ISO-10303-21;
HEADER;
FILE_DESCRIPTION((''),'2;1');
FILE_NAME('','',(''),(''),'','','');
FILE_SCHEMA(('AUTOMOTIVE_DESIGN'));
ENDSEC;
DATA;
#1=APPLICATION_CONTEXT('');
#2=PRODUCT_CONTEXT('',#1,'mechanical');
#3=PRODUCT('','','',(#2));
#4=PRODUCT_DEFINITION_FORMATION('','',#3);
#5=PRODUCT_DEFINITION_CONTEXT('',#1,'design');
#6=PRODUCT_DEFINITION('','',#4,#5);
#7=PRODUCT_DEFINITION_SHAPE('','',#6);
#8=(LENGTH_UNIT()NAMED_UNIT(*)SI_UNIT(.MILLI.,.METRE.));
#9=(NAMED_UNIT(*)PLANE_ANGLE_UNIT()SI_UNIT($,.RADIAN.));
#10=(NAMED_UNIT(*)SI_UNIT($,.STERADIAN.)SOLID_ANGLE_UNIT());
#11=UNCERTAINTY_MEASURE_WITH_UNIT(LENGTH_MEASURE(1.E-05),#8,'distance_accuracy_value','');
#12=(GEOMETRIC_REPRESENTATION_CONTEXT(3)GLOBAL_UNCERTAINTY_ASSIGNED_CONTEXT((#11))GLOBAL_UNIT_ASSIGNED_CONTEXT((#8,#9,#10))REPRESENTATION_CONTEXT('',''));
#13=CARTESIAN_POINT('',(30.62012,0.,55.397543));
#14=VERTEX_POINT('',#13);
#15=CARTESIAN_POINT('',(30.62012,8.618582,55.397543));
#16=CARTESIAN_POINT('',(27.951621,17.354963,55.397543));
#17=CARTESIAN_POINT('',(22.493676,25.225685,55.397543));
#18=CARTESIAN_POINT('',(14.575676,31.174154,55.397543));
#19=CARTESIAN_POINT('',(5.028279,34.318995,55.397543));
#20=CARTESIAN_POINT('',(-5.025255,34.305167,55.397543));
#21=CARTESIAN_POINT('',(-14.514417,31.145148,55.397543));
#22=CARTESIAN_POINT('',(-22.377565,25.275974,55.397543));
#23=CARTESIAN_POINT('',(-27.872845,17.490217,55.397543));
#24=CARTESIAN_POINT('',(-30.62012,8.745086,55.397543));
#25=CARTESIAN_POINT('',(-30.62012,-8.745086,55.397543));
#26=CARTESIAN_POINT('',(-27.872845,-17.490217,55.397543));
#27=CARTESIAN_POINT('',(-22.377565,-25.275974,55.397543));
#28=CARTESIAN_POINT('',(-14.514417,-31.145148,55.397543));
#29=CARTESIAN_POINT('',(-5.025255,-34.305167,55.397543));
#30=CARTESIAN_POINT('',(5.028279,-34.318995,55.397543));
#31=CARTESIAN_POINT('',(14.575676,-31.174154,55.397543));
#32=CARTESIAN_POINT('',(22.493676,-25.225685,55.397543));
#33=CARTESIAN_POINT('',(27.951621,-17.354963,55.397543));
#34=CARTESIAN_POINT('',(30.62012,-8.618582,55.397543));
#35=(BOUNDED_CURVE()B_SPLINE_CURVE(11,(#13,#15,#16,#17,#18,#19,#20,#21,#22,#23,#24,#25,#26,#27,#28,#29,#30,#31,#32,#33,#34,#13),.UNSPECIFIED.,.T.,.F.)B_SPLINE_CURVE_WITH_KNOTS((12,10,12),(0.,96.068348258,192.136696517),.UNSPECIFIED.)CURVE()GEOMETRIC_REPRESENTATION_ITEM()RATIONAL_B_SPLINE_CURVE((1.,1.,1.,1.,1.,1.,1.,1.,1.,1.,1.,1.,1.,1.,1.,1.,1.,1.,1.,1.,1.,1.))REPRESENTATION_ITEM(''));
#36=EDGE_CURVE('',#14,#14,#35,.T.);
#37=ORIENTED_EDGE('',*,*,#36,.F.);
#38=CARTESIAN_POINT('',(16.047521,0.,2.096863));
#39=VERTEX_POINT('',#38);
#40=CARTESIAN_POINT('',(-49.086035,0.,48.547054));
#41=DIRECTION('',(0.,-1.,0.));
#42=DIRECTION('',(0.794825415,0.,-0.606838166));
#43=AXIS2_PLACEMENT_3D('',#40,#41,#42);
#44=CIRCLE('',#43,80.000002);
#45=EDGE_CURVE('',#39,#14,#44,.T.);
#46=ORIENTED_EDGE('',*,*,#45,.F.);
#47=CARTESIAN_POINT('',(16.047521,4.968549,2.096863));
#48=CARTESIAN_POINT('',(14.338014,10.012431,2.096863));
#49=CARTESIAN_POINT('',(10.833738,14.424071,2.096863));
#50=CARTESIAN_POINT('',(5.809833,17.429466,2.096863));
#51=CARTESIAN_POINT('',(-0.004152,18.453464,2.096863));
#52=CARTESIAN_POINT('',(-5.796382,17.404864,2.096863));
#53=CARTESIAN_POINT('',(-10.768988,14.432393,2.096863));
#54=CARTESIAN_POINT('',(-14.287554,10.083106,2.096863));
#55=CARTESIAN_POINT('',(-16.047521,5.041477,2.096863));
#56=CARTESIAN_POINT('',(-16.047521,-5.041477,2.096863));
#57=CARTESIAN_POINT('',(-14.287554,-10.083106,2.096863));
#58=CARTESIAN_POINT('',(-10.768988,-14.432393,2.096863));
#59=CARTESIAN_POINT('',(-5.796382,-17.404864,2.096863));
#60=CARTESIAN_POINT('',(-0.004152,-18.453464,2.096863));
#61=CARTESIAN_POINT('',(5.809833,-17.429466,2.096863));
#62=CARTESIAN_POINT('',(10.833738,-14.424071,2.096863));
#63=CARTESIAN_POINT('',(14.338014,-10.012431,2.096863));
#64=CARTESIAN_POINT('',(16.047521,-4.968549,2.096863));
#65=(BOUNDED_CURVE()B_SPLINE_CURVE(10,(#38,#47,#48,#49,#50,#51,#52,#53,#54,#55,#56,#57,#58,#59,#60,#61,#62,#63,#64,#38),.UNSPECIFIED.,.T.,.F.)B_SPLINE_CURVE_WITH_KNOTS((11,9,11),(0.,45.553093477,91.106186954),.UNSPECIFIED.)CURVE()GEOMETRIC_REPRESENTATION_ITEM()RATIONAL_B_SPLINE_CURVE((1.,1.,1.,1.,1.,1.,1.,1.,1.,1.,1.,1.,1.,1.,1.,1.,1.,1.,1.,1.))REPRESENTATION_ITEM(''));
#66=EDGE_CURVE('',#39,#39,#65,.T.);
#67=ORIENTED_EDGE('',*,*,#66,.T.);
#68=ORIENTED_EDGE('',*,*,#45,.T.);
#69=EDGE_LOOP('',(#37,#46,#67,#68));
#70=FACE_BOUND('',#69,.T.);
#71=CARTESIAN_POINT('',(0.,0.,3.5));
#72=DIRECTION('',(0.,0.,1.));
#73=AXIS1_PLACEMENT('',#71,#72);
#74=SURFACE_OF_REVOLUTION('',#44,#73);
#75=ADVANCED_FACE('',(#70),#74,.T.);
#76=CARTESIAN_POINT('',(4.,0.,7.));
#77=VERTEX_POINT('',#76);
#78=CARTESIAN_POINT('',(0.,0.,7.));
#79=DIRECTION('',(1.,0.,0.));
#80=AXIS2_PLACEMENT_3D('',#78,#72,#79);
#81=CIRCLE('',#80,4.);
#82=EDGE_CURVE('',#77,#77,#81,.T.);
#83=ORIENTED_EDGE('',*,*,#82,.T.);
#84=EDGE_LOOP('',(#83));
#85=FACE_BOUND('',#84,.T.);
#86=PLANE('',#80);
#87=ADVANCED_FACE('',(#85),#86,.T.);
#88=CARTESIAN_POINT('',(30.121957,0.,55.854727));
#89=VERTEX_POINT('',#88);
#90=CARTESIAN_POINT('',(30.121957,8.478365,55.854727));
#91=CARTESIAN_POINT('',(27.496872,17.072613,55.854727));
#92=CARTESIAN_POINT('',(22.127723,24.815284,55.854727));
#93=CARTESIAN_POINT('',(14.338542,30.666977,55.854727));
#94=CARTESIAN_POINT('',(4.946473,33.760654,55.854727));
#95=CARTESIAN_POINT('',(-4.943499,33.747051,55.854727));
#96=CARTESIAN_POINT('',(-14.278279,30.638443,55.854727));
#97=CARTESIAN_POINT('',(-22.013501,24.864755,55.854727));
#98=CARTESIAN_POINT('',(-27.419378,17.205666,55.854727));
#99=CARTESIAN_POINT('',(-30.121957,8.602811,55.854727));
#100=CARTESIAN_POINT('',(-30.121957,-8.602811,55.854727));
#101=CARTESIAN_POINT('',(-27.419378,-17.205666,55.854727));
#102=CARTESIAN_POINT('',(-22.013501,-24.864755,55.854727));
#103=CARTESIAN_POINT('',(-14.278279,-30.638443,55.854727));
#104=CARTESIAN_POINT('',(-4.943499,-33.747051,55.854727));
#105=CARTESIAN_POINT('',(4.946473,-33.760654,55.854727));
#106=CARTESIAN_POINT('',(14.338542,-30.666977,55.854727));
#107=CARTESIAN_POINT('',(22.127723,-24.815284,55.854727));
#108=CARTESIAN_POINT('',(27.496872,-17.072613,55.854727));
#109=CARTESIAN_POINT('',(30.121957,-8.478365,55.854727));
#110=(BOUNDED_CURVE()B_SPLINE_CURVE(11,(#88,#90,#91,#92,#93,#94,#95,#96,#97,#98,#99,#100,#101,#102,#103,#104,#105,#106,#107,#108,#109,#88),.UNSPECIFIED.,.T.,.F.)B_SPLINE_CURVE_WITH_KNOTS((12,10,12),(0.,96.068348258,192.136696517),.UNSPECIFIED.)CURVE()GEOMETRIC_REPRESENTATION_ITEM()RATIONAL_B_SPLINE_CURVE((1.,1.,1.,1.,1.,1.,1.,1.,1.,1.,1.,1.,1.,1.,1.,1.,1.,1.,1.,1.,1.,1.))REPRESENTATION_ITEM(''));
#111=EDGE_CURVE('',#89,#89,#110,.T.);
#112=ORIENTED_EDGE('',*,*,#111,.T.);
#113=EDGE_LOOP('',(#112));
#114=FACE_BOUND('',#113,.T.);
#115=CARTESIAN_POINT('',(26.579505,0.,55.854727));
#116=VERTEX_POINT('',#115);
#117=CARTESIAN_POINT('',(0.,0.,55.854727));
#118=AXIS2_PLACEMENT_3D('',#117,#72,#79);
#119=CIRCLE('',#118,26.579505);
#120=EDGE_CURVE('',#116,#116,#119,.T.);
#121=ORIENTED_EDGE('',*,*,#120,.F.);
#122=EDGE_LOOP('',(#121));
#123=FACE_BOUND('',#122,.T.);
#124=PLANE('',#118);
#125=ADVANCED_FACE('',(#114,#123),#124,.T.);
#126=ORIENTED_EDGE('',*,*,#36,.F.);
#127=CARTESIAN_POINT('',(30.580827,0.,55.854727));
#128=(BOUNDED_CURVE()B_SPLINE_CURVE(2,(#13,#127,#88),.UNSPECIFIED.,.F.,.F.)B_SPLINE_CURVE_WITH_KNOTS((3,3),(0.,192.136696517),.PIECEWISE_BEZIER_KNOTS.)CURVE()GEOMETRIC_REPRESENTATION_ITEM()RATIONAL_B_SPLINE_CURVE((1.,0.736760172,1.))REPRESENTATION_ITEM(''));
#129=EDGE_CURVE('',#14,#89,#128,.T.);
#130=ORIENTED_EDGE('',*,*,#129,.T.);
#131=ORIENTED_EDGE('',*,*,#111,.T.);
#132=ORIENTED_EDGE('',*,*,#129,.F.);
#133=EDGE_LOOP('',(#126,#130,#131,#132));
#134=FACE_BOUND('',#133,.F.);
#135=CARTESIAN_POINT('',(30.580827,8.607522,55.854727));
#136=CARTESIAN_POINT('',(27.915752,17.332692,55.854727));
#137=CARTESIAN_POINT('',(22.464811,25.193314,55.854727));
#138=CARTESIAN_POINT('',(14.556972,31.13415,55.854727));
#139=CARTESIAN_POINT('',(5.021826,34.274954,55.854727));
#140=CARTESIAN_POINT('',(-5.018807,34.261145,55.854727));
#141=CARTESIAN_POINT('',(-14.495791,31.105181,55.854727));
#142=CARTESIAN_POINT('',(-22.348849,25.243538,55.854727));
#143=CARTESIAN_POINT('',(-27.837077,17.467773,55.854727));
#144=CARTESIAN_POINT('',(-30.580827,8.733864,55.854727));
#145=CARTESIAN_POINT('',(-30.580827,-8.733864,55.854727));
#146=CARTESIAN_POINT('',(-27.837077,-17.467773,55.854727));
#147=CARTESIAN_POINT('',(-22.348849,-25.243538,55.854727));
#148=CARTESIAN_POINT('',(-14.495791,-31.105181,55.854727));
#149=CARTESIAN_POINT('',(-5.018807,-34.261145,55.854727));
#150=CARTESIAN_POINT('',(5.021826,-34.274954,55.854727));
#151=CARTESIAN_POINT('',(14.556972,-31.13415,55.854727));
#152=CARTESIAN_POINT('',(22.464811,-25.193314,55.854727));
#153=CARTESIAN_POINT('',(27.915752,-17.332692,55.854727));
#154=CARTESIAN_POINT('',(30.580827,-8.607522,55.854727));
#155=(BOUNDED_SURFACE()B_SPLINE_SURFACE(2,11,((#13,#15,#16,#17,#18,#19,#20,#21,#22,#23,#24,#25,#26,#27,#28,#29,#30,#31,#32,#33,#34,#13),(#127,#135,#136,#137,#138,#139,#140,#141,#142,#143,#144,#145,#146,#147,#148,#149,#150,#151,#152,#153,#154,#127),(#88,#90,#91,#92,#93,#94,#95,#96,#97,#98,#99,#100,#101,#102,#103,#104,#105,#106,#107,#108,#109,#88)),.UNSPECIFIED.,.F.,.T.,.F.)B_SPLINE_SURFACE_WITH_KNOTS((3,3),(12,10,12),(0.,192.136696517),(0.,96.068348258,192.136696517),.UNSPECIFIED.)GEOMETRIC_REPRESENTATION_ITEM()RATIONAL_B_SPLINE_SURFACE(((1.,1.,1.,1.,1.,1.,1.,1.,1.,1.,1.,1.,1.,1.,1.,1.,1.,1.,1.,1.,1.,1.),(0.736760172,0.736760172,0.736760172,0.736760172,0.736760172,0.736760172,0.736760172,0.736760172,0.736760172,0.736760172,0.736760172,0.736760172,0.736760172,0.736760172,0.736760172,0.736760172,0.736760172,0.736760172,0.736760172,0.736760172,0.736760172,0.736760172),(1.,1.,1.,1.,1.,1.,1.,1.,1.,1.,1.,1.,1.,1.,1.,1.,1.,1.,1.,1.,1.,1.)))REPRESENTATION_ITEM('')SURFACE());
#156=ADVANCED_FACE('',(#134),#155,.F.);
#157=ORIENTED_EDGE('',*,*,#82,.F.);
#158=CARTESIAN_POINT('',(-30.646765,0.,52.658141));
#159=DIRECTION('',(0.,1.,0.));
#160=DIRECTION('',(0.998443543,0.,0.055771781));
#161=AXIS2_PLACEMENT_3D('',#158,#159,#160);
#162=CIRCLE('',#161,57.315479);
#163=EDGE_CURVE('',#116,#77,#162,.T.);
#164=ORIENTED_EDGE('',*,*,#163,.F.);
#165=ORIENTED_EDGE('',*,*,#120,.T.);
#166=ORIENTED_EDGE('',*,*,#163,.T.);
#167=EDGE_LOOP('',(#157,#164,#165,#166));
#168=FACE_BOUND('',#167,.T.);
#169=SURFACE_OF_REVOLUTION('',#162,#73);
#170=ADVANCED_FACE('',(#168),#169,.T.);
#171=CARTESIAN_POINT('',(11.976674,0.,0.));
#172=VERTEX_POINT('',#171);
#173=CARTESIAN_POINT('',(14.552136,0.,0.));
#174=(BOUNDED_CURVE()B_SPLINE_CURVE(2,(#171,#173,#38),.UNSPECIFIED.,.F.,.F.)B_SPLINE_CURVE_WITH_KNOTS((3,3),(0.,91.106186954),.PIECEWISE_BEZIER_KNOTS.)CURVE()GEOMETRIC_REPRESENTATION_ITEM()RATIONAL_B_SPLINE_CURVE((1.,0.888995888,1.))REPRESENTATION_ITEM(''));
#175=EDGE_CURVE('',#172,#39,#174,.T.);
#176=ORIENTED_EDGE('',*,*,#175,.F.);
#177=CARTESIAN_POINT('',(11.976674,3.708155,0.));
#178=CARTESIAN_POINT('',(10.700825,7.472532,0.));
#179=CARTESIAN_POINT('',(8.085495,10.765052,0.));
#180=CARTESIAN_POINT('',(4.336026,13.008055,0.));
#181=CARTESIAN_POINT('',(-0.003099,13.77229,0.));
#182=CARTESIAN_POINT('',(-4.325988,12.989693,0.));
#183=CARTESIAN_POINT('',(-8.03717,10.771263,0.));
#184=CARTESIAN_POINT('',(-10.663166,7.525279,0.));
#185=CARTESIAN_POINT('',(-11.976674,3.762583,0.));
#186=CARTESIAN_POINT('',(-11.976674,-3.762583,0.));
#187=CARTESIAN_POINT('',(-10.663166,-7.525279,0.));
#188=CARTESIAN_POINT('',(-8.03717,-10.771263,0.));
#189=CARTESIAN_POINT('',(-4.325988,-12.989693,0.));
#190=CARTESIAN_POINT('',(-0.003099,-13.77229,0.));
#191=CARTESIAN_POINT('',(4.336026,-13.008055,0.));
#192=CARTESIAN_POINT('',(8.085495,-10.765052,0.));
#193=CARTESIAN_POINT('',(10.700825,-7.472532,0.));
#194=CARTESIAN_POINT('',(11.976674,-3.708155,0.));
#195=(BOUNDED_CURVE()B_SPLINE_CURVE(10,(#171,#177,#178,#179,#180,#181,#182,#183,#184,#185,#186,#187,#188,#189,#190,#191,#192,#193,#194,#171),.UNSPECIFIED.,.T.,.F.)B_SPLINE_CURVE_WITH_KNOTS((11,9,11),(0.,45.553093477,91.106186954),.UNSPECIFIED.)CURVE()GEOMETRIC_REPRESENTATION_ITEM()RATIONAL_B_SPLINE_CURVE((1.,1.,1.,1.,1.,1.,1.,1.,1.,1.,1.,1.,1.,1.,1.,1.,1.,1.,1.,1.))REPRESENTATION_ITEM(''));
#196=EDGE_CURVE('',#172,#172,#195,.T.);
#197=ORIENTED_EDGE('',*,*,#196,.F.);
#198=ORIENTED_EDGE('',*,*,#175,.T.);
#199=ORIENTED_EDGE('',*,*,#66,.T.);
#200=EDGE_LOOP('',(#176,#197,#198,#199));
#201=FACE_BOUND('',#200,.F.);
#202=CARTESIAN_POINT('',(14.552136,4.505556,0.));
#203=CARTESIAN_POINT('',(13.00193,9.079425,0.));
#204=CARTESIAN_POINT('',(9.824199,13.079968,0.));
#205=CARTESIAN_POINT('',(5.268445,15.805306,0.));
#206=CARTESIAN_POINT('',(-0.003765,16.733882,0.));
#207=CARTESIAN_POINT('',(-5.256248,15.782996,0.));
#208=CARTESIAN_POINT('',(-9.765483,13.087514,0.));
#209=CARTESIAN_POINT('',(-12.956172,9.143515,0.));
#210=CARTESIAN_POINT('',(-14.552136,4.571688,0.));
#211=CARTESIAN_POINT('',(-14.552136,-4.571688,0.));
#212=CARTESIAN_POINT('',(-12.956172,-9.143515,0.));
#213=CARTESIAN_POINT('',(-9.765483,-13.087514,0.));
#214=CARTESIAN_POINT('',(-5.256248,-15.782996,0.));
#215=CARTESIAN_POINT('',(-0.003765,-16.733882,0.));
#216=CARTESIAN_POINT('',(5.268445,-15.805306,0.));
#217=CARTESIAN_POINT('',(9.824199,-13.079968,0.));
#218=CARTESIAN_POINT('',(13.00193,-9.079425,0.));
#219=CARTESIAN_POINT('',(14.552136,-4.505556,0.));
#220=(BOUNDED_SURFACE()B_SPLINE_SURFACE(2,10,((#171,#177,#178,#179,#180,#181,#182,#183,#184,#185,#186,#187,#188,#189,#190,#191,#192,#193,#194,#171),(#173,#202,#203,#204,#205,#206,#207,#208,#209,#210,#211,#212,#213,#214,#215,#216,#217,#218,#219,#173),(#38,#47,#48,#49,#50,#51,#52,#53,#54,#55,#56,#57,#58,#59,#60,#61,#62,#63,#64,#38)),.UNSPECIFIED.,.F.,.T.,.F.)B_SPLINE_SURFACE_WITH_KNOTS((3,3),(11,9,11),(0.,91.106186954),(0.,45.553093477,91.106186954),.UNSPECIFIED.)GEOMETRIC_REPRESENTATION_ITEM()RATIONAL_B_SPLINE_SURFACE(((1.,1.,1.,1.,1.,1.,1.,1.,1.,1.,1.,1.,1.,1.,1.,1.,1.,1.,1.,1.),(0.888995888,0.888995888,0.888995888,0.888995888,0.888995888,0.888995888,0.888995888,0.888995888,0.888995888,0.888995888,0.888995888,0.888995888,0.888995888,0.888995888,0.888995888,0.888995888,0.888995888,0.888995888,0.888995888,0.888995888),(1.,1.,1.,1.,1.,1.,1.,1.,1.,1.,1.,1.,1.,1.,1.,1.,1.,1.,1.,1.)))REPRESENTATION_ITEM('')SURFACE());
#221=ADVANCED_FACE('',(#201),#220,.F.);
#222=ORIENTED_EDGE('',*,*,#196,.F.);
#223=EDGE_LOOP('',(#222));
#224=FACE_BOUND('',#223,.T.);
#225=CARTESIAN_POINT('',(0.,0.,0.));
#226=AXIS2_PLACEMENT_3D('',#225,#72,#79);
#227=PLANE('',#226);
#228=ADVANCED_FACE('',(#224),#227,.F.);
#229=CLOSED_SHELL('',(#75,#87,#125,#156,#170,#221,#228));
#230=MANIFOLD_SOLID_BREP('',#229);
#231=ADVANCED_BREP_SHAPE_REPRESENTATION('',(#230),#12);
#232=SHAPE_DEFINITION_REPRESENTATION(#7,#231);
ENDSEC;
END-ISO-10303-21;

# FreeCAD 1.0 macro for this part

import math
import FreeCAD as App
import Part
import Sketcher


def edges_at(feature, points):
    """Names of the edges that pass closest to the given points."""
    edges = feature.Shape.Edges
    near = lambda p: min(range(len(edges)), key=lambda i: edges[i].distToShape(Part.Vertex(*p))[0])
    return sorted({f"Edge{near(p) + 1}" for p in points})

doc = App.newDocument("Part")
params = doc.addObject("Spreadsheet::Sheet", "Params")
for row, (alias, value) in enumerate([
    ("sketch1_radius", "80.000002 mm"),
    ("sketch1_width", "4 mm"),
    ("sketch1_height", "7 mm"),
    ("sketch1_width2", "14.5 mm"),
    ("revolution_angle", "360 deg"),
    ("fillet_radius", "5 mm"),
    ("fillet2_radius", "0.5 mm"),
], start=1):
    params.set(f"A{row}", alias)
    params.set(f"B{row}", "=" + value)
    params.setAlias(f"B{row}", alias)

body = doc.addObject("PartDesign::Body", "Body")

# Sketch on XZ plane
sketch1 = body.newObject("Sketcher::SketchObject", "Sketch")
sketch1.AttachmentSupport = (doc.getObject("XZ_Plane"), [""])
sketch1.MapMode = "FlatFace"
sketch1.addGeometry([
    Part.LineSegment(App.Vector(0, 7, 0), App.Vector(0, 0, 0)),  # 0
    Part.LineSegment(App.Vector(0, 0, 0), App.Vector(14.5, 0, 0)),  # 1
    Part.ArcOfCircle(Part.Circle(App.Vector(-49.1, 48.5, 0), App.Vector(0, 0, 1), 80), math.radians(-37), math.radians(5)),  # 2
    Part.LineSegment(App.Vector(30.6, 55.9, 0), App.Vector(26.6, 55.9, 0)),  # 3
    Part.ArcOfCircle(Part.Circle(App.Vector(-30.6, 52.7, 0), App.Vector(0, 0, 1), 57.3), math.radians(-53), math.radians(3)),  # 4
    Part.LineSegment(App.Vector(4, 7, 0), App.Vector(0, 7, 0)),  # 5
], False)
sketch1.addConstraint([
    Sketcher.Constraint("Coincident", 0, 2, 1, 1),
    Sketcher.Constraint("Coincident", 1, 2, 2, 1),
    Sketcher.Constraint("Coincident", 2, 2, 3, 1),
    Sketcher.Constraint("Coincident", 3, 2, 4, 2),
    Sketcher.Constraint("Coincident", 4, 1, 5, 1),
    Sketcher.Constraint("Coincident", 5, 2, 0, 1),
    Sketcher.Constraint("Vertical", 0),
    Sketcher.Constraint("Horizontal", 1),
    Sketcher.Constraint("Horizontal", 3),
    Sketcher.Constraint("Horizontal", 5),
    Sketcher.Constraint("Coincident", 0, 2, -1, 1),
    Sketcher.Constraint("Equal", 3, 5),
    Sketcher.Constraint("Radius", 2, 80.000002),
    Sketcher.Constraint("DistanceX", 3, 2, 3, 1, 4.0),
    Sketcher.Constraint("DistanceY", 0, 2, 0, 1, 7.0),
    Sketcher.Constraint("DistanceX", 1, 1, 1, 2, 14.5),
    Sketcher.Constraint("Radius", 4, 57.315479),
    Sketcher.Constraint("DistanceY", -1, 1, 4, 3, 52.658141),
    Sketcher.Constraint("DistanceX", 2, 3, 4, 3, 18.43927),
])
sketch1.setExpression("Constraints[12]", "Params.sketch1_radius")
sketch1.setExpression("Constraints[13]", "Params.sketch1_width")
sketch1.setExpression("Constraints[14]", "Params.sketch1_height")
sketch1.setExpression("Constraints[15]", "Params.sketch1_width2")
revolution = body.newObject("PartDesign::Revolution", "Revolution")
revolution.Profile = sketch1
revolution.ReferenceAxis = (sketch1, ["V_Axis"])
revolution.setExpression("Angle", "Params.revolution_angle")
doc.recompute()

fillet = body.newObject("PartDesign::Fillet", "Fillet")
fillet.Base = (revolution, edges_at(revolution, [(-14.5, 0, 0)]))
fillet.setExpression("Radius", "Params.fillet_radius")
doc.recompute()

fillet2 = body.newObject("PartDesign::Fillet", "Fillet001")
fillet2.Base = (fillet, edges_at(fillet, [(-30.58, 0, 55.855)]))
fillet2.setExpression("Radius", "Params.fillet2_radius")

doc.recompute()
